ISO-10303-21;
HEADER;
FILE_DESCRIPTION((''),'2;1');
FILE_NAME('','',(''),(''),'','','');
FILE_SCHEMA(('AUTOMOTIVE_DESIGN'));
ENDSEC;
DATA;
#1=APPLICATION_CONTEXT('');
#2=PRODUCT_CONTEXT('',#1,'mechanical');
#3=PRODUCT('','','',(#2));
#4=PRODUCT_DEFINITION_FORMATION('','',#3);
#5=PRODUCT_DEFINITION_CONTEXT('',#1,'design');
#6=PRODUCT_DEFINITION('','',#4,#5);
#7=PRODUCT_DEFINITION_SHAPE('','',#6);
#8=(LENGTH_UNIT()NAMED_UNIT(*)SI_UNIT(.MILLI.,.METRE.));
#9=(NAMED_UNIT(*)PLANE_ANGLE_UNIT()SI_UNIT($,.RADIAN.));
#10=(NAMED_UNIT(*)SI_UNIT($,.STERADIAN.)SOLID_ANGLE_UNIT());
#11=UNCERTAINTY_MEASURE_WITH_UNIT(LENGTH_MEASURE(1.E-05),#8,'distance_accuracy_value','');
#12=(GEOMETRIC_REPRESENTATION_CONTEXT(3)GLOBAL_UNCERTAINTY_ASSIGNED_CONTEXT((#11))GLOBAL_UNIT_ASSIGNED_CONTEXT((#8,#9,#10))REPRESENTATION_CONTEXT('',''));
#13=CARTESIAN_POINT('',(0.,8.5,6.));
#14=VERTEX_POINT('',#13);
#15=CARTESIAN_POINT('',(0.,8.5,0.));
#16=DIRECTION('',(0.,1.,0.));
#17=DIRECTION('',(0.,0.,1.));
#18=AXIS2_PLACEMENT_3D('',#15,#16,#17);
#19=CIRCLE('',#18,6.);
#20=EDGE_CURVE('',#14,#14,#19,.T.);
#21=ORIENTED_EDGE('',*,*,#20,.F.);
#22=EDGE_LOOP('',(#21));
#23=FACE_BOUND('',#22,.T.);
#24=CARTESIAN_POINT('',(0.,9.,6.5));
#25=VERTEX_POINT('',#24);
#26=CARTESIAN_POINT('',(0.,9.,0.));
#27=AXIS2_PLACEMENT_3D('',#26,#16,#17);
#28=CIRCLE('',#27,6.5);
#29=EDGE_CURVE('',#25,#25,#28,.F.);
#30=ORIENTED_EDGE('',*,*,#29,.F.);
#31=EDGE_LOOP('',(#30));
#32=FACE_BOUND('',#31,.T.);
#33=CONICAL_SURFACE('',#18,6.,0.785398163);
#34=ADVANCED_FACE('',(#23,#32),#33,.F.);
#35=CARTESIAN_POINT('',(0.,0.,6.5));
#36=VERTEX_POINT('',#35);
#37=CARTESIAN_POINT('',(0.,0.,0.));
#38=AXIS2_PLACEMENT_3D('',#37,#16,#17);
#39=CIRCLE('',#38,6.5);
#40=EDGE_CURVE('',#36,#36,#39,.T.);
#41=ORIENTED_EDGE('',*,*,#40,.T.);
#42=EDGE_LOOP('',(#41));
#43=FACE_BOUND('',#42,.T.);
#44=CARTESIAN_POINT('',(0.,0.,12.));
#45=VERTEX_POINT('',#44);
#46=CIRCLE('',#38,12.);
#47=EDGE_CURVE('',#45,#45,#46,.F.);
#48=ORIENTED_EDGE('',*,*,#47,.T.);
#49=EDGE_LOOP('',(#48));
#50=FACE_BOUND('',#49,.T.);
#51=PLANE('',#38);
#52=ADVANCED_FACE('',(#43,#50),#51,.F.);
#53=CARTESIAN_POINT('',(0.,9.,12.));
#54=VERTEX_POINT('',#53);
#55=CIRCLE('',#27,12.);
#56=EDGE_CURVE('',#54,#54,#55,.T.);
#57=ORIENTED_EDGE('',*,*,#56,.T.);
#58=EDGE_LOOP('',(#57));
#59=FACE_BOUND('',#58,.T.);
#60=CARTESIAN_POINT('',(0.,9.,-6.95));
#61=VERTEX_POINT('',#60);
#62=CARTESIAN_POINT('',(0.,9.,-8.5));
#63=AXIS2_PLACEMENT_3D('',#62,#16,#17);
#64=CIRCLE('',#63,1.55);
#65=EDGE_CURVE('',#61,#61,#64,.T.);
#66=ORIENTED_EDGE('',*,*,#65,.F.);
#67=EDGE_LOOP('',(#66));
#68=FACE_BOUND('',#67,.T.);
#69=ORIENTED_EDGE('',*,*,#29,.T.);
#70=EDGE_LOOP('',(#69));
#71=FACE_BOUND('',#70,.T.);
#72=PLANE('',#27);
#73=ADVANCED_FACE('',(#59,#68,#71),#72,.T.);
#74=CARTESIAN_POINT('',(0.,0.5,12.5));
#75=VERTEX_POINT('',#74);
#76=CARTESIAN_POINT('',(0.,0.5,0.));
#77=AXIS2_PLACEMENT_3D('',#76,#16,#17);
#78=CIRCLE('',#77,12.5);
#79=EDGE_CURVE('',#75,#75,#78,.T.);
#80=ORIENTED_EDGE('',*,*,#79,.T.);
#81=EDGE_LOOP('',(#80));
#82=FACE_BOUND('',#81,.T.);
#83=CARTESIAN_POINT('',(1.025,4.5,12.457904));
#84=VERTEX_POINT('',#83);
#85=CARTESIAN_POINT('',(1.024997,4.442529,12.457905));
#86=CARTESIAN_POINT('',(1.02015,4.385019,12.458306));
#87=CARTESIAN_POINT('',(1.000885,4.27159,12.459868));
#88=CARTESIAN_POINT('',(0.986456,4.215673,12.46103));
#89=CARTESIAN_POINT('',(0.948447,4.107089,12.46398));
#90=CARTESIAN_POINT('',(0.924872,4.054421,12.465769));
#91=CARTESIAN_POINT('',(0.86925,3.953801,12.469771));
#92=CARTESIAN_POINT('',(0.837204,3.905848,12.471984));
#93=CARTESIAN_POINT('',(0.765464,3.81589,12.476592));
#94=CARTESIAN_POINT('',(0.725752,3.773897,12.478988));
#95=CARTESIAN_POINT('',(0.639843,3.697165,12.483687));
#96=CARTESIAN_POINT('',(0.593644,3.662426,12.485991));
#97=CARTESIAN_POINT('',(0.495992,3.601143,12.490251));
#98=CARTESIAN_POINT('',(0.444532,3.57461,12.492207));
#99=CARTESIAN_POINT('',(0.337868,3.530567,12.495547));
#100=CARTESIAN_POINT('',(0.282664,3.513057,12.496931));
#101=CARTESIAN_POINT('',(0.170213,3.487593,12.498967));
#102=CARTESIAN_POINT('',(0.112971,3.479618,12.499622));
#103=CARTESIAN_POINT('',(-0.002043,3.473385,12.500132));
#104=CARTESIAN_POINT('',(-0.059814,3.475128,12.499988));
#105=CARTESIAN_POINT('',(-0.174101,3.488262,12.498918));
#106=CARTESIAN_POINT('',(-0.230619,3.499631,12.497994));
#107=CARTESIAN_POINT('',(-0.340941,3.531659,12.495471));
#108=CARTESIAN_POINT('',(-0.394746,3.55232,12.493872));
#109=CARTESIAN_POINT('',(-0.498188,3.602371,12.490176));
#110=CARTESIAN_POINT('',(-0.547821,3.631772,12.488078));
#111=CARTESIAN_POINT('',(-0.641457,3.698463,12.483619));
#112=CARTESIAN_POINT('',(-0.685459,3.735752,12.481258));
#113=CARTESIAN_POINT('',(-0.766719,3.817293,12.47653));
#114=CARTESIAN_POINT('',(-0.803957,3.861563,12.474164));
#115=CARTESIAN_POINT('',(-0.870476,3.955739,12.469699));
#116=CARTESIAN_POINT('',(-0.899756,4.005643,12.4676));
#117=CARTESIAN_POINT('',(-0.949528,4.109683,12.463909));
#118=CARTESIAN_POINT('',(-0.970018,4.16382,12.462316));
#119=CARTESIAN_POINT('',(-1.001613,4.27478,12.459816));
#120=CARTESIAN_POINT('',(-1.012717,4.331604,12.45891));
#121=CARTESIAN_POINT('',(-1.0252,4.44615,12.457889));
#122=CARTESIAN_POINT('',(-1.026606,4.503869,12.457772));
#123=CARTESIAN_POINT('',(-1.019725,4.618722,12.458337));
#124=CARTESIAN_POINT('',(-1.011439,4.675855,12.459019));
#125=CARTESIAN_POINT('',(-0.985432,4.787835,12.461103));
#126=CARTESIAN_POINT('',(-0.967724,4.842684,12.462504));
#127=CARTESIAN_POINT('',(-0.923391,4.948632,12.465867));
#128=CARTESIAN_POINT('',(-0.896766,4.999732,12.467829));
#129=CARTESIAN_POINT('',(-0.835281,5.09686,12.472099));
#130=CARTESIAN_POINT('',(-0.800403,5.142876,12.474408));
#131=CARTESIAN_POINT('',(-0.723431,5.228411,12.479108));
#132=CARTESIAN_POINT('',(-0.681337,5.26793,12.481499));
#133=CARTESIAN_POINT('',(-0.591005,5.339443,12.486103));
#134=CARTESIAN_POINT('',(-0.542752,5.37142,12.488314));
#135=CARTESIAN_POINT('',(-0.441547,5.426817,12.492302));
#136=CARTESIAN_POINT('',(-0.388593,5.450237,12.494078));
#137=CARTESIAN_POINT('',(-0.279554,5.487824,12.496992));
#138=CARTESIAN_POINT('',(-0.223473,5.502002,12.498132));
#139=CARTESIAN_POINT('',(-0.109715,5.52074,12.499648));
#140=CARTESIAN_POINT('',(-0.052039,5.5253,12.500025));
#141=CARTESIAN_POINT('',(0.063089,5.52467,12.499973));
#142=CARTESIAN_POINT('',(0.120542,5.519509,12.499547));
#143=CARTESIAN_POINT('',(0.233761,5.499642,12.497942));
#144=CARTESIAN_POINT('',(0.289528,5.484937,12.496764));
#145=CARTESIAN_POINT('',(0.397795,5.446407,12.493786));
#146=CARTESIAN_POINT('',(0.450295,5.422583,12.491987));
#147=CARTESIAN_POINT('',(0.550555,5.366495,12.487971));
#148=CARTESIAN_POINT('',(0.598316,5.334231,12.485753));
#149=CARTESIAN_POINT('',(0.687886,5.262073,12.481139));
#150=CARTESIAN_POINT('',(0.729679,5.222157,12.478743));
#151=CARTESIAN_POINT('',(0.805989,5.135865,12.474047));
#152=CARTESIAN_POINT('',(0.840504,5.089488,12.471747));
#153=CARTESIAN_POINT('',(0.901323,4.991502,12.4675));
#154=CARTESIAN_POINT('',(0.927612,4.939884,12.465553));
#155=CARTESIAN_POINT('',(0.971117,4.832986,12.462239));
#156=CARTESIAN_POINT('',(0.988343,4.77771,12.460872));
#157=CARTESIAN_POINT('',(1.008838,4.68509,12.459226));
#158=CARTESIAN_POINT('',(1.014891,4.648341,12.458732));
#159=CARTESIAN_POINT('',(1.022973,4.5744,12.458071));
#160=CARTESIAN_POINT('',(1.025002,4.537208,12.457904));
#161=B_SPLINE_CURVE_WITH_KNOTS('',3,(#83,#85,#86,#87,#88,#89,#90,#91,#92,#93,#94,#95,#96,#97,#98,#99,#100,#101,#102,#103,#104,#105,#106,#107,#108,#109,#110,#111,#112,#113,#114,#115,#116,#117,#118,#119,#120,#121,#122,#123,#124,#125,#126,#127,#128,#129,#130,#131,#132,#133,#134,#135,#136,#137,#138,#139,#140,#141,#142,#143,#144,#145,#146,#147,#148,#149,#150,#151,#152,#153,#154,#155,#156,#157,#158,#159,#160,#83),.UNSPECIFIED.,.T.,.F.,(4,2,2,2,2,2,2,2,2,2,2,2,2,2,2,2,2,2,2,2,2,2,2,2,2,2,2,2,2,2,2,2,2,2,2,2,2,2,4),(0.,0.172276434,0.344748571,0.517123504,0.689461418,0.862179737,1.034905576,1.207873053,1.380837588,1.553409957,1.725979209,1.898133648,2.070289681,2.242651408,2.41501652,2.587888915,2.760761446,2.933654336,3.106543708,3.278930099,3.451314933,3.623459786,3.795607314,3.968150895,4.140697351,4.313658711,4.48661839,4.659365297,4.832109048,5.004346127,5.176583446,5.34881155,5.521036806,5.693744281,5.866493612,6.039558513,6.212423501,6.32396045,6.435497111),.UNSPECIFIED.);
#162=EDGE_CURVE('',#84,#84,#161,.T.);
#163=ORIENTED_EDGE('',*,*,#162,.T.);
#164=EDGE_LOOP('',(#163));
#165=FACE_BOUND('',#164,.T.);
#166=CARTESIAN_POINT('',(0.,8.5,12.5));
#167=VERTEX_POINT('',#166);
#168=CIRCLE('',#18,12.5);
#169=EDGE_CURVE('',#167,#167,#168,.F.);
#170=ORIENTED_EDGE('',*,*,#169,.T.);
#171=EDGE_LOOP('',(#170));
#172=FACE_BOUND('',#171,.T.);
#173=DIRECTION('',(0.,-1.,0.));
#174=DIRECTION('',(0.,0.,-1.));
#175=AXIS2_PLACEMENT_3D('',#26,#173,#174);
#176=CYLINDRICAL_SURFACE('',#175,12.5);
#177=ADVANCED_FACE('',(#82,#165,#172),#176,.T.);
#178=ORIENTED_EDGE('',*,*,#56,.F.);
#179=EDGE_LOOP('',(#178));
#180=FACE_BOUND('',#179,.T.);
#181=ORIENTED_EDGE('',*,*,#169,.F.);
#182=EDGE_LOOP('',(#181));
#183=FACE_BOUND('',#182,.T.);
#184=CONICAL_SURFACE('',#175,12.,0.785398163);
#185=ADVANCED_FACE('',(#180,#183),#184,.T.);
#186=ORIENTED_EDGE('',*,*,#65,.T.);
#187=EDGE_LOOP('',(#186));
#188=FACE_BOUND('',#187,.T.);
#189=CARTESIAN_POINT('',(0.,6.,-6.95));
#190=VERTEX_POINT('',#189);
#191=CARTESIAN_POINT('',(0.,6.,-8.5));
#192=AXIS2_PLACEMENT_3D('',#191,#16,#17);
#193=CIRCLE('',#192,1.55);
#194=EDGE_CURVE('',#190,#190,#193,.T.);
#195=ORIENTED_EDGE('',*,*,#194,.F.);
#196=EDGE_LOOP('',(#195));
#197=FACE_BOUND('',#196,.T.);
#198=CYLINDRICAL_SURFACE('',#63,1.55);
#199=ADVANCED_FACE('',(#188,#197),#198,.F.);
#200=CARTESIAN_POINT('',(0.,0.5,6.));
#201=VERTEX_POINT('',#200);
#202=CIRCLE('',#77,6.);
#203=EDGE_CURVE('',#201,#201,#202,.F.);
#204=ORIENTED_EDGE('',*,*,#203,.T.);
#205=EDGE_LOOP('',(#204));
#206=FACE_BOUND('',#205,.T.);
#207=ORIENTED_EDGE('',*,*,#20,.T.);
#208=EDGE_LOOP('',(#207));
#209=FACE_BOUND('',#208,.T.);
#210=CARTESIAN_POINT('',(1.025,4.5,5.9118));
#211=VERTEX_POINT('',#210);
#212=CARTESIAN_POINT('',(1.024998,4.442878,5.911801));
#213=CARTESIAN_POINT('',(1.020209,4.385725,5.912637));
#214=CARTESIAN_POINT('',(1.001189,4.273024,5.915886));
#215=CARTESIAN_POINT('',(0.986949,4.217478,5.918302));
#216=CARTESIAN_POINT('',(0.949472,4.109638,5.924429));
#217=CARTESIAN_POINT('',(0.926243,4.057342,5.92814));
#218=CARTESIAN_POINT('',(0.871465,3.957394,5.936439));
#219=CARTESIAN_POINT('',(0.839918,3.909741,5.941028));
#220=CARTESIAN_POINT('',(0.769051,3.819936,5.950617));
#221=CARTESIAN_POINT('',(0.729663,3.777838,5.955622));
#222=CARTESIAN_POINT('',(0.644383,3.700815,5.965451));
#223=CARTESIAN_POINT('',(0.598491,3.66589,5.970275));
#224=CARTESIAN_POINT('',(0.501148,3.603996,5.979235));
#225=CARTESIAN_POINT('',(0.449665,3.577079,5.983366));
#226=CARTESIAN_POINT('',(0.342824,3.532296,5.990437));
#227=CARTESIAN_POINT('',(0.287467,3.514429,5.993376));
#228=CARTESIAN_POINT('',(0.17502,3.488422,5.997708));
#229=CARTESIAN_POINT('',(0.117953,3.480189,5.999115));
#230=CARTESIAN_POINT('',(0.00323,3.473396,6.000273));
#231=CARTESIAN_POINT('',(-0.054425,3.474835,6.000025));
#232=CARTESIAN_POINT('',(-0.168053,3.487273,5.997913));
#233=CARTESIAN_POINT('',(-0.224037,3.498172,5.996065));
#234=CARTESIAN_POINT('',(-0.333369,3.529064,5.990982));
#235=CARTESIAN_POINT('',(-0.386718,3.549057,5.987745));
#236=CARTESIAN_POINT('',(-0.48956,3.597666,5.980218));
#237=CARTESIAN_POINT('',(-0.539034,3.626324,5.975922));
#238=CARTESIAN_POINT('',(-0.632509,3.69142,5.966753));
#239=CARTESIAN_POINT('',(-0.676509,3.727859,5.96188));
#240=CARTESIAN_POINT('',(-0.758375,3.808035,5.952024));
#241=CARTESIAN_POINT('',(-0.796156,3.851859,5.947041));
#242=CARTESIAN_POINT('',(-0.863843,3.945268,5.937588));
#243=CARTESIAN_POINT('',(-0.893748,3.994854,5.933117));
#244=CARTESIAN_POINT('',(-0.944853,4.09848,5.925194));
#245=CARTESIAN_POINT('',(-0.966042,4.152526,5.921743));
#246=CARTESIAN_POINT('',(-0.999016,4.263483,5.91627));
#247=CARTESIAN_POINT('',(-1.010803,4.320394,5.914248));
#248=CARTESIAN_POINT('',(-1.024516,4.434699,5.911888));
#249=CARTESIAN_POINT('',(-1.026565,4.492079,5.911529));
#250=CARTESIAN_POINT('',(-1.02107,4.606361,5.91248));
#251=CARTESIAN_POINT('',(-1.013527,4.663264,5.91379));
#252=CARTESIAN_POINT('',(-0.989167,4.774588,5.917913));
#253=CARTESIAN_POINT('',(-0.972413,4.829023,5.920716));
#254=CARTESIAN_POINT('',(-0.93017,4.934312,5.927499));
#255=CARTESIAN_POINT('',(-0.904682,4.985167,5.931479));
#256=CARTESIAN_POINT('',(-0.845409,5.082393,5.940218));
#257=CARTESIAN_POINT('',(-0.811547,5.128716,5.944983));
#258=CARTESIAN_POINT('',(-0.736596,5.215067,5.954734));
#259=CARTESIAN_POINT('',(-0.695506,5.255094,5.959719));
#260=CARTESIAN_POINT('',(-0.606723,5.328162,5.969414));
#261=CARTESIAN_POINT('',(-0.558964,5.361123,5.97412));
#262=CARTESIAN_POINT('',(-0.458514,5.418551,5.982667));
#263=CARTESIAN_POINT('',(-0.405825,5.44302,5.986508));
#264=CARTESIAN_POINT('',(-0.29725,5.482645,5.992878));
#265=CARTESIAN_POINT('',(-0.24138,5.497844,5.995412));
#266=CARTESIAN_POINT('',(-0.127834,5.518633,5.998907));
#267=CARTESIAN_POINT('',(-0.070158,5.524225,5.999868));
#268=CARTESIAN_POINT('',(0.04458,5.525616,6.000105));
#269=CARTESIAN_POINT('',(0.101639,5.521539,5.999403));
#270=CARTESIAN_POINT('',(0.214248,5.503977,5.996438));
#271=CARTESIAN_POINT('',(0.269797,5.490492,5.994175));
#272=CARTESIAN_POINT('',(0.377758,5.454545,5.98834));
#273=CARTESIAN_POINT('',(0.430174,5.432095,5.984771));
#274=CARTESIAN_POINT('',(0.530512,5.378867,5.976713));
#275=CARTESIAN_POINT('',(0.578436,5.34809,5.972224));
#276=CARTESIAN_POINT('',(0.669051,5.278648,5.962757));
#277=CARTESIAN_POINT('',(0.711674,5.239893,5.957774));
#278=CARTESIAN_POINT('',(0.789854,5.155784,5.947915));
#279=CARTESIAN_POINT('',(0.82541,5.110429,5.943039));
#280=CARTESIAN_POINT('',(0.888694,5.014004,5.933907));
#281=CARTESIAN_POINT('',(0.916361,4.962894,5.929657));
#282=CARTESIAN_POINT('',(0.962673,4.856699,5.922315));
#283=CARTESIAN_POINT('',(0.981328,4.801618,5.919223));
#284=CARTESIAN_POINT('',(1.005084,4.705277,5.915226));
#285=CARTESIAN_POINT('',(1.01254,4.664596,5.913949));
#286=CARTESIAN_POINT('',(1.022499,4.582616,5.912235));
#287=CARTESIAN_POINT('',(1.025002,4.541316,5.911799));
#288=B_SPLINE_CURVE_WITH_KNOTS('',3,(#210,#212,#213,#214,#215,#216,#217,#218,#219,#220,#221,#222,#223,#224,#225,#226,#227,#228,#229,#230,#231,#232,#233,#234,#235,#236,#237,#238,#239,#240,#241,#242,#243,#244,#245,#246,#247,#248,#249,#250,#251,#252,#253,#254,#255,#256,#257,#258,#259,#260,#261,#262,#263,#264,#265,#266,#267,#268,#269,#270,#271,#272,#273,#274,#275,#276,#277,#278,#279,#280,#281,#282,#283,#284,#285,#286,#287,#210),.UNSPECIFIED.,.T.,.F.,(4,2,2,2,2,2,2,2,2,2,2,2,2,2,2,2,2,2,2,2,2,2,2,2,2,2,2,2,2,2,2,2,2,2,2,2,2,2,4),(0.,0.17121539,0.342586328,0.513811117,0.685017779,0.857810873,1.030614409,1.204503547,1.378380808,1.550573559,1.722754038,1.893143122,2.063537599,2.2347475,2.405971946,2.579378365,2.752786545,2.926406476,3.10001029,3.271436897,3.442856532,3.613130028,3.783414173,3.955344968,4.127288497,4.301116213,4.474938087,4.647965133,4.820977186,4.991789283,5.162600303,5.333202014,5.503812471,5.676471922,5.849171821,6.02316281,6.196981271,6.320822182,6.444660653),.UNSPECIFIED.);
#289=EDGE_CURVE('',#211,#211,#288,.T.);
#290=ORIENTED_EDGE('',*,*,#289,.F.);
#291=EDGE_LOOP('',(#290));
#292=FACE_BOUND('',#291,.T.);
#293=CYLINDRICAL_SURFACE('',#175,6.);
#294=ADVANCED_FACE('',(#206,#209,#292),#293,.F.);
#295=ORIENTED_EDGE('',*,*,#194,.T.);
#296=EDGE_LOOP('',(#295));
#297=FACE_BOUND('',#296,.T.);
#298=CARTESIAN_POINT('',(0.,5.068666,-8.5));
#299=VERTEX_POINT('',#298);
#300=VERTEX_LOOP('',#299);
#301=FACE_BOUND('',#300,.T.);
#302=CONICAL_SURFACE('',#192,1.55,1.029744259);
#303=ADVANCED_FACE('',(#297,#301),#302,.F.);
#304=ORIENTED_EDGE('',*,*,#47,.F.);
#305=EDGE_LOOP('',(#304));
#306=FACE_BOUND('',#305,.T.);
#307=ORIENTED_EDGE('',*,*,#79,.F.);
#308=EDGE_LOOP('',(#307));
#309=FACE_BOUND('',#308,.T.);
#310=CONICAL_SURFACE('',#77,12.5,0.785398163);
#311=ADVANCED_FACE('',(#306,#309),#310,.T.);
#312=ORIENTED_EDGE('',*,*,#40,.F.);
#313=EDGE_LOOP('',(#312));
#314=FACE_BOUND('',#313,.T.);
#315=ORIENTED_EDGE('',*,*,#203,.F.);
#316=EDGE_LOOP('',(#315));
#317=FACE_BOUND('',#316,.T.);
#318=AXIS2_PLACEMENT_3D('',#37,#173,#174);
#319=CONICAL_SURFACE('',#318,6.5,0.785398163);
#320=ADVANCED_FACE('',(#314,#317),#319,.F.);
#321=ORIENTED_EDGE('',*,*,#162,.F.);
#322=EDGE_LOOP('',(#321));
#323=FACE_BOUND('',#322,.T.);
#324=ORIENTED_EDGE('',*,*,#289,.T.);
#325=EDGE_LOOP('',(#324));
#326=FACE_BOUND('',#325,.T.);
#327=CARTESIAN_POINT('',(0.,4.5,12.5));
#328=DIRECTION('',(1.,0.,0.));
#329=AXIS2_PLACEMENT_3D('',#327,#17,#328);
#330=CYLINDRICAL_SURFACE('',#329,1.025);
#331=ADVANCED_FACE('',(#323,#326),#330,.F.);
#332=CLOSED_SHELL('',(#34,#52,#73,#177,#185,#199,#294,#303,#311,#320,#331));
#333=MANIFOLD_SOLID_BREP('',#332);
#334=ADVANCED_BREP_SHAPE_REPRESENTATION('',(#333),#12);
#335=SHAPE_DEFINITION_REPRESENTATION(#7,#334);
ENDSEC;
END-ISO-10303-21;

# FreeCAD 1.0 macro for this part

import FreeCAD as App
import Part
import Sketcher
from FreeCAD import Vector
Q = App.Units.Quantity


def edges_at(feature, points):
    """Names of the edges that pass closest to the given points."""
    edges = feature.Shape.Edges
    near = lambda p: min(range(len(edges)), key=lambda i: edges[i].distToShape(Part.Vertex(*p))[0])
    return sorted({f"Edge{near(p) + 1}" for p in points})

doc = App.newDocument("Part")
body = doc.addObject("PartDesign::Body", "Body")

# Sketch on XZ plane
sketch1 = body.newObject("Sketcher::SketchObject", "Sketch")
sketch1.AttachmentSupport = (doc.getObject("XZ_Plane"), [""])
sketch1.MapMode = "FlatFace"
sketch1.addGeometry(Part.Circle(Vector(0, 0, 0), Vector(0, 0, 1), 12.5), False)
sketch1.addGeometry(Part.Circle(Vector(0, 0, 0), Vector(0, 0, 1), 6), False)
sketch1.addConstraint(Sketcher.Constraint("Coincident", 0, 3, -1, 1))
sketch1.addConstraint(Sketcher.Constraint("Coincident", 1, 3, -1, 1))
sketch1.addConstraint(Sketcher.Constraint("Diameter", 0, Q("25 mm")))
sketch1.addConstraint(Sketcher.Constraint("Diameter", 1, Q("12 mm")))
pad1 = body.newObject("PartDesign::Pad", "Pad")
pad1.Profile = sketch1
pad1.Length = 9
pad1.Reversed = True
doc.recompute()

chamfer = body.newObject("PartDesign::Chamfer", "Chamfer")
chamfer.Base = (pad1, edges_at(pad1, [
    (0, 0, -12.5),
    (0, 9, -12.5),
    (0, 0, -6),
    (0, 9, -6),
]))
chamfer.Size = 0.5

# Sketch on XY plane
sketch2 = body.newObject("Sketcher::SketchObject", "Sketch001")
sketch2.AttachmentSupport = (doc.getObject("XY_Plane"), [""])
sketch2.MapMode = "FlatFace"
sketch2.AttachmentOffset = App.Placement(Vector(0, 0, 12.5), App.Rotation())
sketch2.addGeometry(Part.Circle(Vector(0, 4.5, 0), Vector(0, 0, 1), 1.025), False)
sketch2.addConstraint(Sketcher.Constraint("PointOnObject", 0, 3, -2))
sketch2.addConstraint(Sketcher.Constraint("Diameter", 0, Q("2.05 mm")))
sketch2.addConstraint(Sketcher.Constraint("DistanceY", -1, 1, 0, 3, Q("4.5 mm")))
pocket1 = body.newObject("PartDesign::Pocket", "Pocket")
pocket1.Profile = sketch2
pocket1.Type = "UpToFirst"

# Sketch on XZ plane
sketch3 = body.newObject("Sketcher::SketchObject", "Sketch002")
sketch3.AttachmentSupport = (doc.getObject("XZ_Plane"), [""])
sketch3.MapMode = "FlatFace"
sketch3.AttachmentOffset = App.Placement(Vector(0, 0, -9), App.Rotation())
sketch3.addGeometry(Part.Circle(Vector(0, -8.5, 0), Vector(0, 0, 1), 1.55), False)
sketch3.addConstraint(Sketcher.Constraint("PointOnObject", 0, 3, -2))
sketch3.addConstraint(Sketcher.Constraint("Diameter", 0, Q("3.1 mm")))
sketch3.addConstraint(Sketcher.Constraint("DistanceY", 0, 3, -1, 1, Q("8.5 mm")))
doc.recompute()
hole = body.newObject("PartDesign::Hole", "Hole")
hole.Profile = sketch3
hole.ThreadType = "None"
hole.Diameter = 3.1
hole.DepthType = "Dimension"
hole.Depth = 3
hole.DrillPoint = "Angled"
hole.DrillPointAngle = 118
hole.Reversed = True

doc.recompute()
